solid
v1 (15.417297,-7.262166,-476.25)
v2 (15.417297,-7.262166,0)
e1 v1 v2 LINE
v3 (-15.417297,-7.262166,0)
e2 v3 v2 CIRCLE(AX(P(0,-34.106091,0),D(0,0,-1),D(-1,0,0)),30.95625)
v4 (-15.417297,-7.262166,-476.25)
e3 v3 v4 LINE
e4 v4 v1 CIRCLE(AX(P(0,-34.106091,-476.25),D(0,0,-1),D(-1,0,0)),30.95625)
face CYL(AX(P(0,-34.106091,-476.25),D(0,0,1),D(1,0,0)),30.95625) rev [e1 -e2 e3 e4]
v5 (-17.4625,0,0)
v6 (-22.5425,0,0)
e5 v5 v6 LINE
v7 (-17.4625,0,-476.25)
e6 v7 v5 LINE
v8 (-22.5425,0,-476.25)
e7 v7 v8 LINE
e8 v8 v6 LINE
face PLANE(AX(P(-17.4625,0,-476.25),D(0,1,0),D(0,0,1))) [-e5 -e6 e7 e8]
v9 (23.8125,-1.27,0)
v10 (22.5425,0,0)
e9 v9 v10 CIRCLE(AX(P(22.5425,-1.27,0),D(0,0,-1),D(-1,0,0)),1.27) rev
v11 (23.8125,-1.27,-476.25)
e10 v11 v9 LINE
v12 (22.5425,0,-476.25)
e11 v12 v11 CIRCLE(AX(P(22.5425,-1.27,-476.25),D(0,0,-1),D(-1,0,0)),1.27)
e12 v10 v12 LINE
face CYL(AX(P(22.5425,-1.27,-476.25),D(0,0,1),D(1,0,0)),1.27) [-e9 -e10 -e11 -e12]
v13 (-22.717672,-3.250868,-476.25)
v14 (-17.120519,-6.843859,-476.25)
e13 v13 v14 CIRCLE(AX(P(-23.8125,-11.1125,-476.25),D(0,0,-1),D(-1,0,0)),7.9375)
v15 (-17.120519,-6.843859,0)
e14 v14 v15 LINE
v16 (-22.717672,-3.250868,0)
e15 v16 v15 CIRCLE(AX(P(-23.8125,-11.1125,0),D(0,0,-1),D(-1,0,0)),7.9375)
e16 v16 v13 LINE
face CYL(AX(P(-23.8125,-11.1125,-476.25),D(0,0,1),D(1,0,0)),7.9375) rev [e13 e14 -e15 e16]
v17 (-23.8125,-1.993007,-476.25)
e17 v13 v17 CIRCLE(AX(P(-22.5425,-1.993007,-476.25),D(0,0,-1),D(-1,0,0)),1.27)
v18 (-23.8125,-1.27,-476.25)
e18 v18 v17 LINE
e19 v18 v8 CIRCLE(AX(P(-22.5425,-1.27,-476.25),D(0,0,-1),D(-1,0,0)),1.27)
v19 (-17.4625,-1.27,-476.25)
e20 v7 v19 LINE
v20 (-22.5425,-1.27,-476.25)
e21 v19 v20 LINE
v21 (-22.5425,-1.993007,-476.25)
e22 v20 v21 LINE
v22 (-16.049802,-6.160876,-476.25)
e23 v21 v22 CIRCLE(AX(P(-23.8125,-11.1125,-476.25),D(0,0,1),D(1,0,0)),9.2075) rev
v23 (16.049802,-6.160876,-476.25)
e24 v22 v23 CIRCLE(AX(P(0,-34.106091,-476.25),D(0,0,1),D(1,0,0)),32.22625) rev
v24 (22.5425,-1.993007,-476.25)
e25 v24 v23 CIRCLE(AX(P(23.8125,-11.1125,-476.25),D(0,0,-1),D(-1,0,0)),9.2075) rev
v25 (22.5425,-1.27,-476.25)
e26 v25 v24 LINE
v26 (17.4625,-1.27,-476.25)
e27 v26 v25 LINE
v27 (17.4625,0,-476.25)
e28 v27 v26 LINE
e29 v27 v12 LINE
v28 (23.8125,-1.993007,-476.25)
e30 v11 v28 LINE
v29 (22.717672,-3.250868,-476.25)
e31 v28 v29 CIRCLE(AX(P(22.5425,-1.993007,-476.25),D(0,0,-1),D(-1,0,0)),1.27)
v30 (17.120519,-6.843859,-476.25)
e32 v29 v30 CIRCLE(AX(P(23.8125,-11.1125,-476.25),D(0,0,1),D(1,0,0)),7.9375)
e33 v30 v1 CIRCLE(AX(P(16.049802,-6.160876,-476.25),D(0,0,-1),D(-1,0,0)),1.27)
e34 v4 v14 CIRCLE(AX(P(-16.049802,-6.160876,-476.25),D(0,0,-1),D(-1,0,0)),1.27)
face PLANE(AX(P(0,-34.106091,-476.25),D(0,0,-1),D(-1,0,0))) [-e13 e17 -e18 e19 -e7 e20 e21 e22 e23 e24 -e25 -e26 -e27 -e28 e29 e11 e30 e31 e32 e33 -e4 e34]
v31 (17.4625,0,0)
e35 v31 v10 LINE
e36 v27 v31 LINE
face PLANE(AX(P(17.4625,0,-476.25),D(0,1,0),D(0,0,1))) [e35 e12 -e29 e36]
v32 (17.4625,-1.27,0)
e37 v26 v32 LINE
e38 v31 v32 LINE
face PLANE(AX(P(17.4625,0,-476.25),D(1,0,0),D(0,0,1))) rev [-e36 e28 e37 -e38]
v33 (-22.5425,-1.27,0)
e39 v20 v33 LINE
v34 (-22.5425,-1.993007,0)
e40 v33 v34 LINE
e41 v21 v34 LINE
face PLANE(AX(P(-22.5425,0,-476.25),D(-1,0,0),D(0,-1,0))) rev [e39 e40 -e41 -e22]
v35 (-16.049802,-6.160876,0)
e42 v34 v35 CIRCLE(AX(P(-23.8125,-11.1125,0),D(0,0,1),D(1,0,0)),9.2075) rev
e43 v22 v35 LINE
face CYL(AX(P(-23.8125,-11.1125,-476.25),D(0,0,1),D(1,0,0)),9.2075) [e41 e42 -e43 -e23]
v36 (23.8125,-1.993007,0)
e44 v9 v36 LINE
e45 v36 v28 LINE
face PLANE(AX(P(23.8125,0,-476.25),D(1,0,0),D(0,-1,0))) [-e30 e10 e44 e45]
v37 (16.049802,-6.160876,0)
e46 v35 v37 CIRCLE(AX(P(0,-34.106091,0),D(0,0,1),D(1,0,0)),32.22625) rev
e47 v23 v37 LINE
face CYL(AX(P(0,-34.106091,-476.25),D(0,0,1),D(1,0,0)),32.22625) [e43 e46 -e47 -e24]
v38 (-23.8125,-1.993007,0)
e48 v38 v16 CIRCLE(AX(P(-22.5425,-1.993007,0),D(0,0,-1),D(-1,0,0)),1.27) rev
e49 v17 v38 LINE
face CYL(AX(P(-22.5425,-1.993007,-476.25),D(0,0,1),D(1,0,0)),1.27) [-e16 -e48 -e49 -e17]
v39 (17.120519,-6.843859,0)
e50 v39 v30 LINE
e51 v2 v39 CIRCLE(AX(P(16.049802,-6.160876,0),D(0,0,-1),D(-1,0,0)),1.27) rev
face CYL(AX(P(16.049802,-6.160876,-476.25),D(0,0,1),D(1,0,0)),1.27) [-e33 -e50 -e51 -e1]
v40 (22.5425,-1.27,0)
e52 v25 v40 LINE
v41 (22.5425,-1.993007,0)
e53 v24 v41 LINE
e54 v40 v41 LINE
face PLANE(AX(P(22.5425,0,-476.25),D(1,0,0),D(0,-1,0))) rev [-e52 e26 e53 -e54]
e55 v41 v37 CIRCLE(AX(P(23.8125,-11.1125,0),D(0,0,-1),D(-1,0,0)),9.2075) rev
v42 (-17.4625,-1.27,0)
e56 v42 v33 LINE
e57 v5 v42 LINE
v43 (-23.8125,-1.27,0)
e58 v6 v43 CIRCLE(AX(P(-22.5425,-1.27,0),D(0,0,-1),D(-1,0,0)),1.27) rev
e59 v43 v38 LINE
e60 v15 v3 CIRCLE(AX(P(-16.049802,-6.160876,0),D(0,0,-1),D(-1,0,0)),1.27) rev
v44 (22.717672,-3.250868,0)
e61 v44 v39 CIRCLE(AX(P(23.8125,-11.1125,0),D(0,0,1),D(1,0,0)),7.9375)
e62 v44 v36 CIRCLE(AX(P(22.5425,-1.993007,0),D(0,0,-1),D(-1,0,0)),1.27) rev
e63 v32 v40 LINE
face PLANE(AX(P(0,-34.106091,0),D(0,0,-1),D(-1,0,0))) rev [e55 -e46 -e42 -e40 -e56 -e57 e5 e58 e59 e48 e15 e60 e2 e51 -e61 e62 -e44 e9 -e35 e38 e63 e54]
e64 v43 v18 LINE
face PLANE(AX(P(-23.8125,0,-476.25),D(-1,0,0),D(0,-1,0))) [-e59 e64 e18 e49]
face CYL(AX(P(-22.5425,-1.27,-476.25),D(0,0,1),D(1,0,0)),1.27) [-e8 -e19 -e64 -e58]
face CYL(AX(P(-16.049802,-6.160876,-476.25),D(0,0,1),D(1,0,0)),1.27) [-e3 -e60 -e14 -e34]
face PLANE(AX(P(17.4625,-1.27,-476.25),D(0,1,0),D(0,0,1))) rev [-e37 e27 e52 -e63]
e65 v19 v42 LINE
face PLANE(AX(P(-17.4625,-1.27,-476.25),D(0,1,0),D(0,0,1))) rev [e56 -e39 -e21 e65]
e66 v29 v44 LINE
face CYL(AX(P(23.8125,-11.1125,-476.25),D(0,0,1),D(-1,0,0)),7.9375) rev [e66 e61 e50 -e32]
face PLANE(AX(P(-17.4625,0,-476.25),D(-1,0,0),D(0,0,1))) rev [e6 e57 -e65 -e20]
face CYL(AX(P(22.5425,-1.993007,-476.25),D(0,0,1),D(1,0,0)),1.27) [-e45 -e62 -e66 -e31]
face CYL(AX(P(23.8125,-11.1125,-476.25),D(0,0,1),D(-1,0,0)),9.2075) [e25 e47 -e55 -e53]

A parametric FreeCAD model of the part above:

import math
import FreeCAD as App
import Part
import Sketcher
from FreeCAD import Vector
Q = App.Units.Quantity


def edges_at(feature, points):
    """Names of the edges that pass closest to the given points."""
    edges = feature.Shape.Edges
    near = lambda p: min(range(len(edges)), key=lambda i: edges[i].distToShape(Part.Vertex(*p))[0])
    return sorted({f"Edge{near(p) + 1}" for p in points})

doc = App.newDocument("Part")
body = doc.addObject("PartDesign::Body", "Body")

# Sketch on XY plane
sketch1 = body.newObject("Sketcher::SketchObject", "Sketch")
sketch1.AttachmentSupport = (doc.getObject("XY_Plane"), [""])
sketch1.MapMode = "FlatFace"
sketch1.addGeometry(Part.LineSegment(Vector(-17.4625, 0, 0), Vector(-23.8125, 0, 0)), False)
sketch1.addGeometry(Part.LineSegment(Vector(-23.8125, 0, 0), Vector(-23.8125, -3.175, 0)), False)
sketch1.addGeometry(Part.ArcOfCircle(Part.Circle(Vector(-23.8125, -11.1125, 0), Vector(0, 0, 1), 7.9375), math.radians(23.578178), math.radians(90)), False)
sketch1.addGeometry(Part.ArcOfCircle(Part.Circle(Vector(0, -34.106091, 0), Vector(0, 0, 1), 30.95625), math.radians(90), math.radians(122.291496)), False)
sketch1.addGeometry(Part.LineSegment(Vector(0, -3.149841, 0), Vector(0, -1.879841, 0)), False)
sketch1.addGeometry(Part.ArcOfCircle(Part.Circle(Vector(0, -34.106091, 0), Vector(0, 0, 1), 32.22625), math.radians(90), math.radians(119.870085)), False)
sketch1.addGeometry(Part.ArcOfCircle(Part.Circle(Vector(-23.8125, -11.1125, 0), Vector(0, 0, 1), 9.2075), math.radians(32.532746), math.radians(82.071858)), False)
sketch1.addGeometry(Part.LineSegment(Vector(-22.5425, -1.993007, 0), Vector(-22.5425, -1.27, 0)), False)
sketch1.addGeometry(Part.LineSegment(Vector(-22.5425, -1.27, 0), Vector(-17.4625, -1.27, 0)), False)
sketch1.addGeometry(Part.LineSegment(Vector(-17.4625, -1.27, 0), Vector(-17.4625, 0, 0)), False)
sketch1.addConstraint(Sketcher.Constraint("Coincident", 0, 2, 1, 1))
sketch1.addConstraint(Sketcher.Constraint("Coincident", 1, 2, 2, 2))
sketch1.addConstraint(Sketcher.Constraint("Coincident", 2, 1, 3, 2))
sketch1.addConstraint(Sketcher.Constraint("Coincident", 3, 1, 4, 1))
sketch1.addConstraint(Sketcher.Constraint("Coincident", 4, 2, 5, 1))
sketch1.addConstraint(Sketcher.Constraint("Coincident", 5, 2, 6, 1))
sketch1.addConstraint(Sketcher.Constraint("Coincident", 6, 2, 7, 1))
sketch1.addConstraint(Sketcher.Constraint("Coincident", 7, 2, 8, 1))
sketch1.addConstraint(Sketcher.Constraint("Coincident", 8, 2, 9, 1))
sketch1.addConstraint(Sketcher.Constraint("Coincident", 9, 2, 0, 1))
sketch1.addConstraint(Sketcher.Constraint("Horizontal", 0))
sketch1.addConstraint(Sketcher.Constraint("Vertical", 1))
sketch1.addConstraint(Sketcher.Constraint("Vertical", 4))
sketch1.addConstraint(Sketcher.Constraint("Vertical", 7))
sketch1.addConstraint(Sketcher.Constraint("Horizontal", 8))
sketch1.addConstraint(Sketcher.Constraint("Vertical", 9))
sketch1.addConstraint(Sketcher.Constraint("Coincident", 5, 3, 3, 3))
sketch1.addConstraint(Sketcher.Constraint("Coincident", 6, 3, 2, 3))
sketch1.addConstraint(Sketcher.Constraint("PointOnObject", 3, 3, -2))
sketch1.addConstraint(Sketcher.Constraint("PointOnObject", 0, 2, -1))
sketch1.addConstraint(Sketcher.Constraint("PointOnObject", 3, 1, -2))
sketch1.addConstraint(Sketcher.Constraint("Vertical", 6, 3, 0, 2))
sketch1.addConstraint(Sketcher.Constraint("Equal", 4, 9))
sketch1.addConstraint(Sketcher.Constraint("DistanceX", 8, 1, 8, 2, Q("0.2 in")))
sketch1.addConstraint(Sketcher.Constraint("Radius", 2, Q("0.3125 in")))
sketch1.addConstraint(Sketcher.Constraint("Radius", 3, Q("1.21875 in")))
sketch1.addConstraint(Sketcher.Constraint("DistanceX", 0, 2, 0, 1, Q("0.25 in")))
sketch1.addConstraint(Sketcher.Constraint("DistanceY", 4, 1, 4, 2, Q("0.05 in")))
sketch1.addConstraint(Sketcher.Constraint("Radius", 6, Q("0.3625 in")))
sketch1.addConstraint(Sketcher.Constraint("DistanceY", 1, 2, 1, 1, Q("0.125 in")))
sketch1.addConstraint(Sketcher.Constraint("DistanceX", 2, 3, -1, 1, Q("0.9375 in")))
sketch1.addConstraint(Sketcher.Constraint("DistanceY", 2, 1, -1, 1, Q("0.3125 in")))
pad1 = body.newObject("PartDesign::Pad", "Pad")
pad1.Profile = sketch1
pad1.Length = Q("18.75 in")
pad1.Reversed = True
body2 = doc.addObject("PartDesign::Body", "Body001")
doc.recompute()

body2.BaseFeature = body
doc.recompute()

mirroring = doc.addObject("Part::Mirroring", "Mirroring")
mirroring.Source = body
mirroring.Base = Vector(0, -1.879841, -476.25)
mirroring.Normal = Vector(-1, 0, 0)
body3 = doc.addObject("PartDesign::Body", "Body002")
body3.BaseFeature = mirroring
boolean = body2.newObject("PartDesign::Boolean", "Boolean")
boolean.Type = "Fuse"
boolean.addObjects([body3])
doc.recompute()

fillet = body2.newObject("PartDesign::Fillet", "Fillet")
fillet.Base = (boolean, edges_at(boolean, [
    (-16.538, -7.938, -238.125),
    (-23.812, -3.175, -238.125),
    (-23.812, 0, -238.125),
    (16.538, -7.938, -238.125),
    (23.812, -3.175, -238.125),
    (23.812, 0, -238.125),
]))
fillet.Radius = Q("0.05 in")
mirroring.Visibility = False

doc.recompute()
